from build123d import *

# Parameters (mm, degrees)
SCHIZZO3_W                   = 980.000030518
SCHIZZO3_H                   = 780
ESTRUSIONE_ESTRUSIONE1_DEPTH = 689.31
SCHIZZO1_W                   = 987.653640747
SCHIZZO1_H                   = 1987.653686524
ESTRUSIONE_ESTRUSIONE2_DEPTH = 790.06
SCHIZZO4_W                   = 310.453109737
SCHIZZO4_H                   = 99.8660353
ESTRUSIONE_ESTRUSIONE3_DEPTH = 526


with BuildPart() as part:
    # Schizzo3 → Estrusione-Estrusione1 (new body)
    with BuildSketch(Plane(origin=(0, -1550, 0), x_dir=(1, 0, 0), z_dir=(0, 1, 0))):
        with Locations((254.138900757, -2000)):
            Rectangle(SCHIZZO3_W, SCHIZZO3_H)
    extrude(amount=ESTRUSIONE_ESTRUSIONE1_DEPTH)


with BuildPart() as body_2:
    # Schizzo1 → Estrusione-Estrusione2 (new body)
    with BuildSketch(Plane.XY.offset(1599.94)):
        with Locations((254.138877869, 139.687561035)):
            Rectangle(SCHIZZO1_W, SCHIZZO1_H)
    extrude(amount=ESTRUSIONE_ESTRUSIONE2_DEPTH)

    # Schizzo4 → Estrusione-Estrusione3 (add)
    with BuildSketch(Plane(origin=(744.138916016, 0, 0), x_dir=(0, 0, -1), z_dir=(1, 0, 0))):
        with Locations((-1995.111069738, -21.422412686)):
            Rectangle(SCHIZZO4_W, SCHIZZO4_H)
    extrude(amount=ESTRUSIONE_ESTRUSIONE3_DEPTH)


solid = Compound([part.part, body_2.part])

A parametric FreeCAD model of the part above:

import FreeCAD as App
import Part
import Sketcher
from FreeCAD import Vector
Q = App.Units.Quantity


def add_polygon(sketch, points):
    """Adds a closed chain of lines whose ends are joined by coincident constraints."""
    first, n = sketch.GeometryCount, len(points)
    for a, b in zip(points, points[1:] + points[:1]):
        sketch.addGeometry(Part.LineSegment(App.Vector(*a, 0), App.Vector(*b, 0)), False)
    for i in range(n):
        sketch.addConstraint(Sketcher.Constraint("Coincident", first + i, 2, first + (i + 1) % n, 1))

doc = App.newDocument("Part")
body = doc.addObject("PartDesign::Body", "Body")

sketch1 = doc.addObject("Sketcher::SketchObject", "Sketch")
body.addObject(sketch1)
sketch1.AttachmentSupport = (doc.XZ_Plane, [""])
sketch1.MapMode = "FlatFace"
sketch1.AttachmentOffset = App.Placement(Vector(0, 0, 1550), App.Rotation())
add_polygon(sketch1, [(-236, 1610), (-236, 2390), (744, 2390), (744, 1610)])
sketch1.addConstraint([
    Sketcher.Constraint("Vertical", 0),
    Sketcher.Constraint("Horizontal", 1),
    Sketcher.Constraint("Vertical", 2),
    Sketcher.Constraint("Horizontal", 3),
    Sketcher.Constraint("DistanceY", 0, 1, 0, 2, Q("780 mm")),
    Sketcher.Constraint("DistanceY", -1, 1, 0, 2, Q("2390 mm")),
    Sketcher.Constraint("DistanceX", 1, 1, 1, 2, Q("980.000031 mm")),
    Sketcher.Constraint("DistanceX", 0, 2, -1, 1, Q("235.861115 mm")),
])
pad1 = doc.addObject("PartDesign::Pad", "Pad")
body.addObject(pad1)
pad1.Profile = sketch1
pad1.Length = 689.31
pad1.Reversed = True
body2 = doc.addObject("PartDesign::Body", "Body001")

sketch2 = doc.addObject("Sketcher::SketchObject", "Sketch001")
body2.addObject(sketch2)
sketch2.AttachmentSupport = (doc.getObject("XY_Plane001"), [""])
sketch2.MapMode = "FlatFace"
sketch2.AttachmentOffset = App.Placement(Vector(0, 0, 1599.94), App.Rotation())
add_polygon(sketch2, [(-240, 1134), (-240, -854), (748, -854), (748, 1134)])
sketch2.addConstraint([
    Sketcher.Constraint("Vertical", 0),
    Sketcher.Constraint("Horizontal", 1),
    Sketcher.Constraint("Vertical", 2),
    Sketcher.Constraint("Horizontal", 3),
    Sketcher.Constraint("DistanceX", 1, 1, 1, 2, Q("987.653641 mm")),
    Sketcher.Constraint("DistanceX", -1, 1, 1, 2, Q("747.965698 mm")),
    Sketcher.Constraint("DistanceY", 0, 2, 0, 1, Q("1987.653687 mm")),
    Sketcher.Constraint("DistanceY", 0, 2, -1, 1, Q("854.139282 mm")),
])
pad2 = doc.addObject("PartDesign::Pad", "Pad001")
body2.addObject(pad2)
pad2.Profile = sketch2
pad2.Length = 790.06

sketch3 = doc.addObject("Sketcher::SketchObject", "Sketch002")
body2.addObject(sketch3)
sketch3.AttachmentSupport = (doc.getObject("YZ_Plane001"), [""])
sketch3.MapMode = "FlatFace"
sketch3.AttachmentOffset = App.Placement(Vector(0, 0, 744.138916), App.Rotation())
add_polygon(sketch3, [(29, 2150), (-71, 2150), (-71, 1840), (29, 1840)])
sketch3.addConstraint([
    Sketcher.Constraint("Horizontal", 0),
    Sketcher.Constraint("Vertical", 1),
    Sketcher.Constraint("Horizontal", 2),
    Sketcher.Constraint("Vertical", 3),
    Sketcher.Constraint("DistanceY", 1, 2, 1, 1, Q("310.45311 mm")),
    Sketcher.Constraint("DistanceX", 0, 2, 0, 1, Q("99.866035 mm")),
    Sketcher.Constraint("DistanceX", 0, 2, -1, 1, Q("71.35543 mm")),
    Sketcher.Constraint("DistanceY", -1, 1, 0, 2, Q("2150.337625 mm")),
])
pad3 = doc.addObject("PartDesign::Pad", "Pad002")
body2.addObject(pad3)
pad3.Profile = sketch3
pad3.Length = 526

doc.recompute()
